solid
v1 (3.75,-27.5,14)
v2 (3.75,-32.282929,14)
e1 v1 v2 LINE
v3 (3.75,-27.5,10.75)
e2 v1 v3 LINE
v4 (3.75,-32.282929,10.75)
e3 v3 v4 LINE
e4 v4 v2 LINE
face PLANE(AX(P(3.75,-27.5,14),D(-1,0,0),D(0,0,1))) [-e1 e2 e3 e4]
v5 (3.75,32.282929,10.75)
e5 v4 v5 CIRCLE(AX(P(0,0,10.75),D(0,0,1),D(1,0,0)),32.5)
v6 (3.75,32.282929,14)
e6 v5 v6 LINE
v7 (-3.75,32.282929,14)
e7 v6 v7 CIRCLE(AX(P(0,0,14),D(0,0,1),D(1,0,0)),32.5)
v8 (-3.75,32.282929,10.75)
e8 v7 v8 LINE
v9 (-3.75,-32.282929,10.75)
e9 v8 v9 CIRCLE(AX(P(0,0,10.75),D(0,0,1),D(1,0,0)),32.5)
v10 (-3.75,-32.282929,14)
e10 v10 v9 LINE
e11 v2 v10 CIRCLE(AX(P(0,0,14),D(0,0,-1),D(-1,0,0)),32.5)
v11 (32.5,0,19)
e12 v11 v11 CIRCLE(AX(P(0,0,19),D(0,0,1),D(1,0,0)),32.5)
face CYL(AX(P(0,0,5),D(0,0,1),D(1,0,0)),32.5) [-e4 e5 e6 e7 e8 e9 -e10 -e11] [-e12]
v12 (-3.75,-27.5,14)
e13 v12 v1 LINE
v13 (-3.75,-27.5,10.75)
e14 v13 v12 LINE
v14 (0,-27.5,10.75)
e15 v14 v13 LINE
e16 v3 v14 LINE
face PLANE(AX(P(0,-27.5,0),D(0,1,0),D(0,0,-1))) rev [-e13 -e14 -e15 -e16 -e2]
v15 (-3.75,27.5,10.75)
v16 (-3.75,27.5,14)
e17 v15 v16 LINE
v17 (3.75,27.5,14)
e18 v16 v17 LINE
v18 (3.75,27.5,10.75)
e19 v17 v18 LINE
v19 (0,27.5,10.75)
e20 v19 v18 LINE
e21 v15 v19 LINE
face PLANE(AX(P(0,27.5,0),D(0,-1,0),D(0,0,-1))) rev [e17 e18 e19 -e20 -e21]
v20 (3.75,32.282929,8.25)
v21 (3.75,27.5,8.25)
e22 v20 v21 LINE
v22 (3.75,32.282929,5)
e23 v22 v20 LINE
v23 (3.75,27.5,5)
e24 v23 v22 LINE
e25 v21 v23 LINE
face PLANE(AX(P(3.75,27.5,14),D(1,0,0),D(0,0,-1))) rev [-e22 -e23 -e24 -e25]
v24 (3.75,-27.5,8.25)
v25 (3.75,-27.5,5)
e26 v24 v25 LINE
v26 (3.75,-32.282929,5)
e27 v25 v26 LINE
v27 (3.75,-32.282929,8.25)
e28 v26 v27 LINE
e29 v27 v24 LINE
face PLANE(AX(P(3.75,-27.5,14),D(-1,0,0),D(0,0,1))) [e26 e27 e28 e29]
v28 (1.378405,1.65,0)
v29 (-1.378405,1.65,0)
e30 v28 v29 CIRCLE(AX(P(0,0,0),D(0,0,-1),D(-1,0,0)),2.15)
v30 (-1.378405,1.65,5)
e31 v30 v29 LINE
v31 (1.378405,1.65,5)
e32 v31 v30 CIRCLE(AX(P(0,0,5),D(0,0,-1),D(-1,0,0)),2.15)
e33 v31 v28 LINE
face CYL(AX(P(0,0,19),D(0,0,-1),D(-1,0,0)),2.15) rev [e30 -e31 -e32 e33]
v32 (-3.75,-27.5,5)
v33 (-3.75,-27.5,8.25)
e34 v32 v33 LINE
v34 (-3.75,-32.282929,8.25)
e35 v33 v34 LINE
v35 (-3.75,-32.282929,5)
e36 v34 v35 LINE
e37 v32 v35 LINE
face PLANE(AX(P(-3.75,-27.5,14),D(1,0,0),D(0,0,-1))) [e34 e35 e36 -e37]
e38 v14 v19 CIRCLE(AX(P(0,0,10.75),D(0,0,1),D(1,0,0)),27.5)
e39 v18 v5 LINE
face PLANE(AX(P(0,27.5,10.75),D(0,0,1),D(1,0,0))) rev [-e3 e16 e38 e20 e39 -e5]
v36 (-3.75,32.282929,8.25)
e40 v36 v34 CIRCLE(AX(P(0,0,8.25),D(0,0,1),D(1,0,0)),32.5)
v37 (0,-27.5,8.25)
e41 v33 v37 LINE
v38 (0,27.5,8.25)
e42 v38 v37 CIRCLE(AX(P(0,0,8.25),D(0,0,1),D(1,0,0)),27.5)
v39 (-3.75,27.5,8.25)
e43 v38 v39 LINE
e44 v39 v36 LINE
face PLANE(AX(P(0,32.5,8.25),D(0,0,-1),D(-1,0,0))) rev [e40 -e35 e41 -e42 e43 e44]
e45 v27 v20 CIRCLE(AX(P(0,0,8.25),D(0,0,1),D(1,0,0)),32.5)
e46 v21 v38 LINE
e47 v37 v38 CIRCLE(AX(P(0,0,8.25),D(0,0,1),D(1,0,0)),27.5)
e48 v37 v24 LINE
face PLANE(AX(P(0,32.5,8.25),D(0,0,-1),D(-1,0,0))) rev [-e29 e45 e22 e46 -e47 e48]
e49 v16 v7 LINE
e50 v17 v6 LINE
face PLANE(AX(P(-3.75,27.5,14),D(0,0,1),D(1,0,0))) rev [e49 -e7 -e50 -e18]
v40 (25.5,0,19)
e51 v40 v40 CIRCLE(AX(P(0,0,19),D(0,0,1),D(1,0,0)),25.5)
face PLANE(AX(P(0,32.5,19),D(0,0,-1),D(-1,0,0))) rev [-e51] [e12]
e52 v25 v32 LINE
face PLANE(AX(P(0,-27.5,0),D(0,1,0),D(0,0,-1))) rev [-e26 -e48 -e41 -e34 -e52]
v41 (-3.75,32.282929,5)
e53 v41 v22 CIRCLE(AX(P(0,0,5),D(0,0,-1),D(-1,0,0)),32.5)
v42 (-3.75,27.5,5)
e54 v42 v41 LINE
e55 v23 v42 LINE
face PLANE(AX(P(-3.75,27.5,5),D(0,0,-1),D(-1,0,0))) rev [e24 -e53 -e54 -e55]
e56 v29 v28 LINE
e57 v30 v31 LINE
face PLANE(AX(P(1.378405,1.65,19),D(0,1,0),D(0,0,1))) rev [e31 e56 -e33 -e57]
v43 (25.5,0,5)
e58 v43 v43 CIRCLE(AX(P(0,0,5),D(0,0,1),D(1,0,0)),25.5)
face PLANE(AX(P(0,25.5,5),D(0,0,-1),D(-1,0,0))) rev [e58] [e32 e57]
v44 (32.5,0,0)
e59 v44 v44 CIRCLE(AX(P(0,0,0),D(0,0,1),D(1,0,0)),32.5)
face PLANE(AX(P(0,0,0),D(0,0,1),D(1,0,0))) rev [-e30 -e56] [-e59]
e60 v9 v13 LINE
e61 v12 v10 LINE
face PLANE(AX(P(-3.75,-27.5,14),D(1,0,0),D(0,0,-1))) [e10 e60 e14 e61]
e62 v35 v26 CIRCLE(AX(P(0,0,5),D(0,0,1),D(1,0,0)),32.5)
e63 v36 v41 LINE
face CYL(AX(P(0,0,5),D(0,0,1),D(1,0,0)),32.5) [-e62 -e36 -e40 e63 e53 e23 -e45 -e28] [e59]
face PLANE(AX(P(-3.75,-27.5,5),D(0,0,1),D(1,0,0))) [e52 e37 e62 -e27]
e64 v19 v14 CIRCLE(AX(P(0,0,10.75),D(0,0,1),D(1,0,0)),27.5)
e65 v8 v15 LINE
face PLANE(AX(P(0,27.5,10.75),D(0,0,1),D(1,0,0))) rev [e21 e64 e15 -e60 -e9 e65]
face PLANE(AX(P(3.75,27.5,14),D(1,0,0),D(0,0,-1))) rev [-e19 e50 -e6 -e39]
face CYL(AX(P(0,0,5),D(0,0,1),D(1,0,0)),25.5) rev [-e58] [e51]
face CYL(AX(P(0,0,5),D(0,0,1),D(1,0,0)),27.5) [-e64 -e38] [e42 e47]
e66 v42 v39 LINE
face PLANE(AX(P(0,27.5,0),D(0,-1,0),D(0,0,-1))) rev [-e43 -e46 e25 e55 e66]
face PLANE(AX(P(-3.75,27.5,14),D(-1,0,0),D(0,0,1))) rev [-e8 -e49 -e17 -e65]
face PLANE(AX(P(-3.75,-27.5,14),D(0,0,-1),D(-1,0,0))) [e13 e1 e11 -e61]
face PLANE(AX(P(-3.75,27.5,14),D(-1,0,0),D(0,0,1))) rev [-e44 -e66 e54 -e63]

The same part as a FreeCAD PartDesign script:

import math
import FreeCAD as App
import Part
import Sketcher
from FreeCAD import Vector


def add_polygon(sketch, points):
    """Adds a closed chain of lines whose ends are joined by coincident constraints."""
    first, n = sketch.GeometryCount, len(points)
    for a, b in zip(points, points[1:] + points[:1]):
        sketch.addGeometry(Part.LineSegment(App.Vector(*a, 0), App.Vector(*b, 0)), False)
    for i in range(n):
        sketch.addConstraint(Sketcher.Constraint("Coincident", first + i, 2, first + (i + 1) % n, 1))

doc = App.newDocument("Part")
body = doc.addObject("PartDesign::Body", "Body")

sketch1 = doc.addObject("Sketcher::SketchObject", "Sketch")
body.addObject(sketch1)
sketch1.AttachmentSupport = (doc.YZ_Plane, [""])
sketch1.MapMode = "FlatFace"
add_polygon(sketch1, [(0, 0), (32.5, 0), (32.5, 8.2), (27.5, 8.2), (27.5, 10.8), (32.5, 10.8), (32.5, 19), (25.5, 19), (25.5, 5), (0, 5)])
sketch1.addConstraint(Sketcher.Constraint("Horizontal", 0))
sketch1.addConstraint(Sketcher.Constraint("Vertical", 1))
sketch1.addConstraint(Sketcher.Constraint("Horizontal", 2))
sketch1.addConstraint(Sketcher.Constraint("Vertical", 3))
sketch1.addConstraint(Sketcher.Constraint("Horizontal", 4))
sketch1.addConstraint(Sketcher.Constraint("Vertical", 5))
sketch1.addConstraint(Sketcher.Constraint("Horizontal", 6))
sketch1.addConstraint(Sketcher.Constraint("Vertical", 7))
sketch1.addConstraint(Sketcher.Constraint("Horizontal", 8))
sketch1.addConstraint(Sketcher.Constraint("Vertical", 9))
sketch1.addConstraint(Sketcher.Constraint("Coincident", 9, 2, -1, 1))
sketch1.addConstraint(Sketcher.Constraint("Vertical", 1, 2, 4, 2))
sketch1.addConstraint(Sketcher.Constraint("Equal", 1, 5))
sketch1.addConstraint(Sketcher.Constraint("Equal", 4, 9))
sketch1.addConstraint(Sketcher.Constraint("DistanceX", 2, 2, 2, 1, 5.0))
sketch1.addConstraint(Sketcher.Constraint("DistanceX", 6, 2, 6, 1, 7.0))
sketch1.addConstraint(Sketcher.Constraint("DistanceY", 7, 2, 7, 1, 14.0))
sketch1.addConstraint(Sketcher.Constraint("DistanceX", 0, 1, 0, 2, 32.5))
sketch1.addConstraint(Sketcher.Constraint("DistanceY", 3, 1, 3, 2, 2.5))
revolution = doc.addObject("PartDesign::Revolution", "Revolution")
body.addObject(revolution)
revolution.Profile = sketch1
revolution.ReferenceAxis = (sketch1, ["V_Axis"])
revolution.Angle = 360

sketch2 = doc.addObject("Sketcher::SketchObject", "Sketch001")
body.addObject(sketch2)
sketch2.AttachmentSupport = (doc.XZ_Plane, [""])
sketch2.MapMode = "FlatFace"
sketch2.AttachmentOffset = App.Placement(Vector(0, 0, -32.5), App.Rotation())
add_polygon(sketch2, [(-4, 5), (-4, 14), (4, 14), (4, 5)])
sketch2.addConstraint(Sketcher.Constraint("Vertical", 0))
sketch2.addConstraint(Sketcher.Constraint("Horizontal", 1))
sketch2.addConstraint(Sketcher.Constraint("Vertical", 2))
sketch2.addConstraint(Sketcher.Constraint("Horizontal", 3))
sketch2.addConstraint(Sketcher.Constraint("DistanceY", 0, 1, 0, 2, 9.0))
sketch2.addConstraint(Sketcher.Constraint("DistanceX", 1, 1, 1, 2, 7.5))
sketch2.addConstraint(Sketcher.Constraint("DistanceY", -1, 1, 0, 2, 14.0))
sketch2.addConstraint(Sketcher.Constraint("DistanceX", 0, 2, -1, 1, 3.75))
pocket1 = doc.addObject("PartDesign::Pocket", "Pocket")
body.addObject(pocket1)
pocket1.Profile = sketch2
pocket1.Length = 5
pocket1.Reversed = True
doc.recompute()

mirrored = doc.addObject("PartDesign::Mirrored", "Mirrored")
body.addObject(mirrored)
mirrored.Originals = [pocket1]
mirrored.MirrorPlane = (doc.XZ_Plane, [""])
body.Tip = mirrored

sketch3 = doc.addObject("Sketcher::SketchObject", "Sketch002")
body.addObject(sketch3)
sketch3.AttachmentSupport = (doc.XY_Plane, [""])
sketch3.MapMode = "FlatFace"
sketch3.addGeometry(Part.LineSegment(Vector(-1.4, 1.6, 0), Vector(1.4, 1.6, 0)), False)
sketch3.addGeometry(Part.ArcOfCircle(Part.Circle(Vector(0, 0, 0), Vector(0, 0, 1), 2.1), math.radians(130), math.radians(410)), False)
sketch3.addConstraint(Sketcher.Constraint("Coincident", 0, 1, 1, 1))
sketch3.addConstraint(Sketcher.Constraint("Coincident", 1, 2, 0, 2))
sketch3.addConstraint(Sketcher.Constraint("Horizontal", 0))
sketch3.addConstraint(Sketcher.Constraint("Coincident", 1, 3, -1, 1))
sketch3.addConstraint(Sketcher.Constraint("Radius", 1, 2.15))
sketch3.addConstraint(Sketcher.Constraint("DistanceY", -1, 1, 0, 1, 1.65))
pocket2 = doc.addObject("PartDesign::Pocket", "Pocket001")
body.addObject(pocket2)
pocket2.Profile = sketch3
pocket2.Type = "ThroughAll"
pocket2.Reversed = True

doc.recompute()
